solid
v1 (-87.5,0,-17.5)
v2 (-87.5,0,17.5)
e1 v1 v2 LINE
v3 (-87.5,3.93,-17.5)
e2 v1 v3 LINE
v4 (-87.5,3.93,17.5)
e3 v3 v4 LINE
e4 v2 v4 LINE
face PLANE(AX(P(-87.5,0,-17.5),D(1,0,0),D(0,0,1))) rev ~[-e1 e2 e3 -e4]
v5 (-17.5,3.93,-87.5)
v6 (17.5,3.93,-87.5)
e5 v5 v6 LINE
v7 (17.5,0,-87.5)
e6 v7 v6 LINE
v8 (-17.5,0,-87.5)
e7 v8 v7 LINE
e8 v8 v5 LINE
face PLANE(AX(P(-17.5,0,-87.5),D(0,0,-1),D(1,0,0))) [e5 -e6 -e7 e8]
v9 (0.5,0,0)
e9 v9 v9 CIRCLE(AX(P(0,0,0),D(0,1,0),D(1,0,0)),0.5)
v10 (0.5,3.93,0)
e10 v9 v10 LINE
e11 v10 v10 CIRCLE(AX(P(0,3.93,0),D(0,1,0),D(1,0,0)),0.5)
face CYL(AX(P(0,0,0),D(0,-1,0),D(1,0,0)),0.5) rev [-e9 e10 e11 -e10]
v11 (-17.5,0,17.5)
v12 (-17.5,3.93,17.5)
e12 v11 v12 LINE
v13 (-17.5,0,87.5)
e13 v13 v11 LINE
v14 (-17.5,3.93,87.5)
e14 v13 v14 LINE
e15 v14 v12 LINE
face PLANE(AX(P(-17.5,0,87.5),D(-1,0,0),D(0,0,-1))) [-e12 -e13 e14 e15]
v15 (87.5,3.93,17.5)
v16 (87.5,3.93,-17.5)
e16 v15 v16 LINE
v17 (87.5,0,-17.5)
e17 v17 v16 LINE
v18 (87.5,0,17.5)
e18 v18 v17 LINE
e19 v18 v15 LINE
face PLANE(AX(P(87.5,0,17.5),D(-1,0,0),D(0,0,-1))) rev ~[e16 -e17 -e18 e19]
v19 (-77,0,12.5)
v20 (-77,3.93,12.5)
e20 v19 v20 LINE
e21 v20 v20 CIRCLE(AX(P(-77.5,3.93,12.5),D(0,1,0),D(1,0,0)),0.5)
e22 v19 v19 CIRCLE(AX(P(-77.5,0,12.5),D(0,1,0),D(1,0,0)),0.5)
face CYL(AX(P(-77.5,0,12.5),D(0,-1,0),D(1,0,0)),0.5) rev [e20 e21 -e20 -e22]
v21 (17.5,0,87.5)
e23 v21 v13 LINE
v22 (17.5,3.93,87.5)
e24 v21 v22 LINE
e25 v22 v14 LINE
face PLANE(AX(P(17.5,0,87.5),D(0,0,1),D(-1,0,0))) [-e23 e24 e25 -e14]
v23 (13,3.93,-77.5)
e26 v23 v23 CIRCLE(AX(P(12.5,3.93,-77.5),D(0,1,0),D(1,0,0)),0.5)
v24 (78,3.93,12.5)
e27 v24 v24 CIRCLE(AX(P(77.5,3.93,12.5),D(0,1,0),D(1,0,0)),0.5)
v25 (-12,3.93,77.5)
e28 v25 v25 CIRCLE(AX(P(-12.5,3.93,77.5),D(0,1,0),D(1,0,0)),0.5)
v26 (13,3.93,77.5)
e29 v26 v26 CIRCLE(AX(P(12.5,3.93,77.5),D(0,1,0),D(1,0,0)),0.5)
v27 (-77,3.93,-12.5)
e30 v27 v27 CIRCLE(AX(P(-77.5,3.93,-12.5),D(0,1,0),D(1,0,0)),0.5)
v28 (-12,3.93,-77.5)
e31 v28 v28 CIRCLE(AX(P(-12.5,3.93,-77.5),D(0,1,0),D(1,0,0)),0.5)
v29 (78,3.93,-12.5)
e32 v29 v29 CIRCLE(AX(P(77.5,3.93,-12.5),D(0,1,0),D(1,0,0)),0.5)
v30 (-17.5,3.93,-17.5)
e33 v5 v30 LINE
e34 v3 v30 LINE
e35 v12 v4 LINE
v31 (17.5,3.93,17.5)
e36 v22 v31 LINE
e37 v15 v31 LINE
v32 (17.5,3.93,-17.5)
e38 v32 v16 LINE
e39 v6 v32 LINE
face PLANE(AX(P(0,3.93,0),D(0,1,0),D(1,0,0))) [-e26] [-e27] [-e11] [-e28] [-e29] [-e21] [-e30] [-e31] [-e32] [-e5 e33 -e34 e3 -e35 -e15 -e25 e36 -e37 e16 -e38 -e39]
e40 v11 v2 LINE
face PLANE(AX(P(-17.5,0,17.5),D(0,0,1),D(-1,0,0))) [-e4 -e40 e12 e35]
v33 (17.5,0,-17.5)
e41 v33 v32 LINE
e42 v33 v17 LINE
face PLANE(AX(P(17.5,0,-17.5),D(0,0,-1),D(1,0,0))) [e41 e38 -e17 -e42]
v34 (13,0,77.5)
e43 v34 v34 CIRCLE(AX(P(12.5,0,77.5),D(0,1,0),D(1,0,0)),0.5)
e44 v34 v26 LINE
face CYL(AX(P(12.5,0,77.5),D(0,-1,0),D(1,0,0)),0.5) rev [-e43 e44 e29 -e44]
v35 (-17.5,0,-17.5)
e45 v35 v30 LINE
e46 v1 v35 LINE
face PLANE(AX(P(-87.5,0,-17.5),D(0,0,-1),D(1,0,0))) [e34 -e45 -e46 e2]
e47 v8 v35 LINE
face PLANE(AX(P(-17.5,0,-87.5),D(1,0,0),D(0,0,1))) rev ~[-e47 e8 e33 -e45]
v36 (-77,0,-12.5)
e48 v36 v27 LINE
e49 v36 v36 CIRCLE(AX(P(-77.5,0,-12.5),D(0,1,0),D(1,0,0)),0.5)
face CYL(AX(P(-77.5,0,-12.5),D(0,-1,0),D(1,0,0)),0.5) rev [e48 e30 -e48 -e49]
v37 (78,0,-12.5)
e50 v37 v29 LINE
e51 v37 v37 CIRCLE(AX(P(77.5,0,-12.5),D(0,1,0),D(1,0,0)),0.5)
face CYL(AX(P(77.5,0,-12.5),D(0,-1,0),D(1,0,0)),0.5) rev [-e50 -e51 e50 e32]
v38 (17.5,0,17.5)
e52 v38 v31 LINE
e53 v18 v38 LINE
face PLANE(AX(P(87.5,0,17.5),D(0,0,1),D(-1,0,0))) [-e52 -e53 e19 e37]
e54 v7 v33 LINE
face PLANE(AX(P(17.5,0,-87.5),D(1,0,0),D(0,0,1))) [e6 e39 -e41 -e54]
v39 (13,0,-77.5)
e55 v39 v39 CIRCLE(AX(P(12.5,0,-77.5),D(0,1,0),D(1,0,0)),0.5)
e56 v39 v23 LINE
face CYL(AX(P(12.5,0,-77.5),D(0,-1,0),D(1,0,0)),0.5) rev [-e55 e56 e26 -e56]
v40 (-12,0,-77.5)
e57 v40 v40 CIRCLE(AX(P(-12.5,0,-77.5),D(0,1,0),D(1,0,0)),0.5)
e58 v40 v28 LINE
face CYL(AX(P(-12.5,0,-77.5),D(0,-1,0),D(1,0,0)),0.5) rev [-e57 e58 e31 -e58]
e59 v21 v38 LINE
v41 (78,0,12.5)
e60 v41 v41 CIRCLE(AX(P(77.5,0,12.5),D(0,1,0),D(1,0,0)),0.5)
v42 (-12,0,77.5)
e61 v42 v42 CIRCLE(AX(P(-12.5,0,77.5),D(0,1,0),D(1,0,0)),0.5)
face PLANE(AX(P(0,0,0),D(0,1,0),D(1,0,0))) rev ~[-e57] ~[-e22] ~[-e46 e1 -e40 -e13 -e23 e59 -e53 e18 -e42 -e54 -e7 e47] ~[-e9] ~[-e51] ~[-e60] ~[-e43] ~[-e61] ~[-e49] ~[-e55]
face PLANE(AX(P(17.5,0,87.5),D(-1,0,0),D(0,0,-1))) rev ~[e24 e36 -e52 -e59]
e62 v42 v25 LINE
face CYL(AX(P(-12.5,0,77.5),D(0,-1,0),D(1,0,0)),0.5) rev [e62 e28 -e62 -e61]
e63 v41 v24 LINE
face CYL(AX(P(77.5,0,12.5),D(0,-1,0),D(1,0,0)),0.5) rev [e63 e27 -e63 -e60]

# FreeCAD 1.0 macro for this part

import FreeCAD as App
import Part
import Sketcher

doc = App.newDocument("Part")
body = doc.addObject("PartDesign::Body", "Body")

# Sketch on XZ plane
sketch1 = body.newObject("Sketcher::SketchObject", "Sketch")
sketch1.AttachmentSupport = (doc.getObject("XZ_Plane"), [""])
sketch1.MapMode = "FlatFace"
sketch1.addGeometry(Part.LineSegment(App.Vector(-17.5, 87.5, 0), App.Vector(17.5, 87.5, 0)), False)
sketch1.addGeometry(Part.LineSegment(App.Vector(17.5, 87.5, 0), App.Vector(17.5, 17.5, 0)), False)
sketch1.addGeometry(Part.LineSegment(App.Vector(17.5, 17.5, 0), App.Vector(87.5, 17.5, 0)), False)
sketch1.addGeometry(Part.LineSegment(App.Vector(87.5, 17.5, 0), App.Vector(87.5, -17.5, 0)), False)
sketch1.addGeometry(Part.LineSegment(App.Vector(87.5, -17.5, 0), App.Vector(17.5, -17.5, 0)), False)
sketch1.addGeometry(Part.LineSegment(App.Vector(17.5, -17.5, 0), App.Vector(17.5, -87.5, 0)), False)
sketch1.addGeometry(Part.LineSegment(App.Vector(17.5, -87.5, 0), App.Vector(-17.5, -87.5, 0)), False)
sketch1.addGeometry(Part.LineSegment(App.Vector(-17.5, -87.5, 0), App.Vector(-17.5, -17.5, 0)), False)
sketch1.addGeometry(Part.LineSegment(App.Vector(-17.5, -17.5, 0), App.Vector(-87.5, -17.5, 0)), False)
sketch1.addGeometry(Part.LineSegment(App.Vector(-87.5, -17.5, 0), App.Vector(-87.5, 17.5, 0)), False)
sketch1.addGeometry(Part.LineSegment(App.Vector(-87.5, 17.5, 0), App.Vector(-17.5, 17.5, 0)), False)
sketch1.addGeometry(Part.LineSegment(App.Vector(-17.5, 17.5, 0), App.Vector(-17.5, 87.5, 0)), False)
sketch1.addGeometry(Part.Circle(App.Vector(-12.5, 77.5, 0), App.Vector(0, 0, 1), 0.5), False)
sketch1.addGeometry(Part.Circle(App.Vector(-77.5, 12.5, 0), App.Vector(0, 0, 1), 0.5), False)
sketch1.addGeometry(Part.Circle(App.Vector(12.5, 77.5, 0), App.Vector(0, 0, 1), 0.5), False)
sketch1.addGeometry(Part.Circle(App.Vector(77.5, 12.5, 0), App.Vector(0, 0, 1), 0.5), False)
sketch1.addGeometry(Part.Circle(App.Vector(-77.5, -12.5, 0), App.Vector(0, 0, 1), 0.5), False)
sketch1.addGeometry(Part.Circle(App.Vector(-12.5, -77.5, 0), App.Vector(0, 0, 1), 0.5), False)
sketch1.addGeometry(Part.Circle(App.Vector(0, 0, 0), App.Vector(0, 0, 1), 0.5), False)
sketch1.addGeometry(Part.Circle(App.Vector(77.5, -12.5, 0), App.Vector(0, 0, 1), 0.5), False)
sketch1.addGeometry(Part.Circle(App.Vector(12.5, -77.5, 0), App.Vector(0, 0, 1), 0.5), False)
sketch1.addConstraint(Sketcher.Constraint("Coincident", 0, 2, 1, 1))
sketch1.addConstraint(Sketcher.Constraint("Coincident", 1, 2, 2, 1))
sketch1.addConstraint(Sketcher.Constraint("Coincident", 2, 2, 3, 1))
sketch1.addConstraint(Sketcher.Constraint("Coincident", 3, 2, 4, 1))
sketch1.addConstraint(Sketcher.Constraint("Coincident", 4, 2, 5, 1))
sketch1.addConstraint(Sketcher.Constraint("Coincident", 5, 2, 6, 1))
sketch1.addConstraint(Sketcher.Constraint("Coincident", 6, 2, 7, 1))
sketch1.addConstraint(Sketcher.Constraint("Coincident", 7, 2, 8, 1))
sketch1.addConstraint(Sketcher.Constraint("Coincident", 8, 2, 9, 1))
sketch1.addConstraint(Sketcher.Constraint("Coincident", 9, 2, 10, 1))
sketch1.addConstraint(Sketcher.Constraint("Coincident", 10, 2, 11, 1))
sketch1.addConstraint(Sketcher.Constraint("Coincident", 11, 2, 0, 1))
sketch1.addConstraint(Sketcher.Constraint("Horizontal", 0))
sketch1.addConstraint(Sketcher.Constraint("Vertical", 1))
sketch1.addConstraint(Sketcher.Constraint("Horizontal", 2))
sketch1.addConstraint(Sketcher.Constraint("Vertical", 3))
sketch1.addConstraint(Sketcher.Constraint("Horizontal", 4))
sketch1.addConstraint(Sketcher.Constraint("Vertical", 5))
sketch1.addConstraint(Sketcher.Constraint("Horizontal", 6))
sketch1.addConstraint(Sketcher.Constraint("Vertical", 7))
sketch1.addConstraint(Sketcher.Constraint("Horizontal", 8))
sketch1.addConstraint(Sketcher.Constraint("Vertical", 9))
sketch1.addConstraint(Sketcher.Constraint("Horizontal", 10))
sketch1.addConstraint(Sketcher.Constraint("Vertical", 11))
sketch1.addConstraint(Sketcher.Constraint("Coincident", 18, 3, -1, 1))
sketch1.addConstraint(Sketcher.Constraint("Equal", 12, 13))
sketch1.addConstraint(Sketcher.Constraint("Equal", 13, 14))
sketch1.addConstraint(Sketcher.Constraint("Equal", 14, 15))
sketch1.addConstraint(Sketcher.Constraint("Equal", 15, 16))
sketch1.addConstraint(Sketcher.Constraint("Equal", 16, 17))
sketch1.addConstraint(Sketcher.Constraint("Equal", 17, 18))
sketch1.addConstraint(Sketcher.Constraint("Equal", 18, 19))
sketch1.addConstraint(Sketcher.Constraint("Equal", 19, 20))
sketch1.addConstraint(Sketcher.Constraint("Symmetric", 15, 3, 16, 3, -1, 1))
sketch1.addConstraint(Sketcher.Constraint("Symmetric", 14, 3, 17, 3, -1, 1))
sketch1.addConstraint(Sketcher.Constraint("Symmetric", 13, 3, 19, 3, -1, 1))
sketch1.addConstraint(Sketcher.Constraint("Symmetric", 12, 3, 20, 3, -1, 1))
sketch1.addConstraint(Sketcher.Constraint("Symmetric", 0, 2, 6, 2, -1, 1))
sketch1.addConstraint(Sketcher.Constraint("Symmetric", 2, 2, 8, 2, -1, 1))
sketch1.addConstraint(Sketcher.Constraint("Symmetric", 4, 2, 10, 2, -1, 1))
sketch1.addConstraint(Sketcher.Constraint("Symmetric", 12, 3, 14, 3, -2))
sketch1.addConstraint(Sketcher.Constraint("Symmetric", 13, 3, 15, 3, -2))
sketch1.addConstraint(Sketcher.Constraint("Symmetric", 4, 2, 7, 2, -2))
sketch1.addConstraint(Sketcher.Constraint("Equal", 10, 1))
sketch1.addConstraint(Sketcher.Constraint("Equal", 6, 3))
sketch1.addConstraint(Sketcher.Constraint("Diameter", 12, 1.0))
sketch1.addConstraint(Sketcher.Constraint("DistanceX", 0, 1, 0, 2, 35.0))
sketch1.addConstraint(Sketcher.Constraint("DistanceX", 2, 1, 2, 2, 70.0))
sketch1.addConstraint(Sketcher.Constraint("DistanceX", 14, 3, 0, 2, 5.0))
sketch1.addConstraint(Sketcher.Constraint("DistanceY", 14, 3, 0, 2, 10.0))
sketch1.addConstraint(Sketcher.Constraint("DistanceY", 15, 3, 1, 2, 5.0))
sketch1.addConstraint(Sketcher.Constraint("DistanceX", 15, 3, 2, 2, 10.0))
pad1 = body.newObject("PartDesign::Pad", "Pad")
pad1.Profile = sketch1
pad1.Length = 3.93
pad1.Reversed = True

doc.recompute()
